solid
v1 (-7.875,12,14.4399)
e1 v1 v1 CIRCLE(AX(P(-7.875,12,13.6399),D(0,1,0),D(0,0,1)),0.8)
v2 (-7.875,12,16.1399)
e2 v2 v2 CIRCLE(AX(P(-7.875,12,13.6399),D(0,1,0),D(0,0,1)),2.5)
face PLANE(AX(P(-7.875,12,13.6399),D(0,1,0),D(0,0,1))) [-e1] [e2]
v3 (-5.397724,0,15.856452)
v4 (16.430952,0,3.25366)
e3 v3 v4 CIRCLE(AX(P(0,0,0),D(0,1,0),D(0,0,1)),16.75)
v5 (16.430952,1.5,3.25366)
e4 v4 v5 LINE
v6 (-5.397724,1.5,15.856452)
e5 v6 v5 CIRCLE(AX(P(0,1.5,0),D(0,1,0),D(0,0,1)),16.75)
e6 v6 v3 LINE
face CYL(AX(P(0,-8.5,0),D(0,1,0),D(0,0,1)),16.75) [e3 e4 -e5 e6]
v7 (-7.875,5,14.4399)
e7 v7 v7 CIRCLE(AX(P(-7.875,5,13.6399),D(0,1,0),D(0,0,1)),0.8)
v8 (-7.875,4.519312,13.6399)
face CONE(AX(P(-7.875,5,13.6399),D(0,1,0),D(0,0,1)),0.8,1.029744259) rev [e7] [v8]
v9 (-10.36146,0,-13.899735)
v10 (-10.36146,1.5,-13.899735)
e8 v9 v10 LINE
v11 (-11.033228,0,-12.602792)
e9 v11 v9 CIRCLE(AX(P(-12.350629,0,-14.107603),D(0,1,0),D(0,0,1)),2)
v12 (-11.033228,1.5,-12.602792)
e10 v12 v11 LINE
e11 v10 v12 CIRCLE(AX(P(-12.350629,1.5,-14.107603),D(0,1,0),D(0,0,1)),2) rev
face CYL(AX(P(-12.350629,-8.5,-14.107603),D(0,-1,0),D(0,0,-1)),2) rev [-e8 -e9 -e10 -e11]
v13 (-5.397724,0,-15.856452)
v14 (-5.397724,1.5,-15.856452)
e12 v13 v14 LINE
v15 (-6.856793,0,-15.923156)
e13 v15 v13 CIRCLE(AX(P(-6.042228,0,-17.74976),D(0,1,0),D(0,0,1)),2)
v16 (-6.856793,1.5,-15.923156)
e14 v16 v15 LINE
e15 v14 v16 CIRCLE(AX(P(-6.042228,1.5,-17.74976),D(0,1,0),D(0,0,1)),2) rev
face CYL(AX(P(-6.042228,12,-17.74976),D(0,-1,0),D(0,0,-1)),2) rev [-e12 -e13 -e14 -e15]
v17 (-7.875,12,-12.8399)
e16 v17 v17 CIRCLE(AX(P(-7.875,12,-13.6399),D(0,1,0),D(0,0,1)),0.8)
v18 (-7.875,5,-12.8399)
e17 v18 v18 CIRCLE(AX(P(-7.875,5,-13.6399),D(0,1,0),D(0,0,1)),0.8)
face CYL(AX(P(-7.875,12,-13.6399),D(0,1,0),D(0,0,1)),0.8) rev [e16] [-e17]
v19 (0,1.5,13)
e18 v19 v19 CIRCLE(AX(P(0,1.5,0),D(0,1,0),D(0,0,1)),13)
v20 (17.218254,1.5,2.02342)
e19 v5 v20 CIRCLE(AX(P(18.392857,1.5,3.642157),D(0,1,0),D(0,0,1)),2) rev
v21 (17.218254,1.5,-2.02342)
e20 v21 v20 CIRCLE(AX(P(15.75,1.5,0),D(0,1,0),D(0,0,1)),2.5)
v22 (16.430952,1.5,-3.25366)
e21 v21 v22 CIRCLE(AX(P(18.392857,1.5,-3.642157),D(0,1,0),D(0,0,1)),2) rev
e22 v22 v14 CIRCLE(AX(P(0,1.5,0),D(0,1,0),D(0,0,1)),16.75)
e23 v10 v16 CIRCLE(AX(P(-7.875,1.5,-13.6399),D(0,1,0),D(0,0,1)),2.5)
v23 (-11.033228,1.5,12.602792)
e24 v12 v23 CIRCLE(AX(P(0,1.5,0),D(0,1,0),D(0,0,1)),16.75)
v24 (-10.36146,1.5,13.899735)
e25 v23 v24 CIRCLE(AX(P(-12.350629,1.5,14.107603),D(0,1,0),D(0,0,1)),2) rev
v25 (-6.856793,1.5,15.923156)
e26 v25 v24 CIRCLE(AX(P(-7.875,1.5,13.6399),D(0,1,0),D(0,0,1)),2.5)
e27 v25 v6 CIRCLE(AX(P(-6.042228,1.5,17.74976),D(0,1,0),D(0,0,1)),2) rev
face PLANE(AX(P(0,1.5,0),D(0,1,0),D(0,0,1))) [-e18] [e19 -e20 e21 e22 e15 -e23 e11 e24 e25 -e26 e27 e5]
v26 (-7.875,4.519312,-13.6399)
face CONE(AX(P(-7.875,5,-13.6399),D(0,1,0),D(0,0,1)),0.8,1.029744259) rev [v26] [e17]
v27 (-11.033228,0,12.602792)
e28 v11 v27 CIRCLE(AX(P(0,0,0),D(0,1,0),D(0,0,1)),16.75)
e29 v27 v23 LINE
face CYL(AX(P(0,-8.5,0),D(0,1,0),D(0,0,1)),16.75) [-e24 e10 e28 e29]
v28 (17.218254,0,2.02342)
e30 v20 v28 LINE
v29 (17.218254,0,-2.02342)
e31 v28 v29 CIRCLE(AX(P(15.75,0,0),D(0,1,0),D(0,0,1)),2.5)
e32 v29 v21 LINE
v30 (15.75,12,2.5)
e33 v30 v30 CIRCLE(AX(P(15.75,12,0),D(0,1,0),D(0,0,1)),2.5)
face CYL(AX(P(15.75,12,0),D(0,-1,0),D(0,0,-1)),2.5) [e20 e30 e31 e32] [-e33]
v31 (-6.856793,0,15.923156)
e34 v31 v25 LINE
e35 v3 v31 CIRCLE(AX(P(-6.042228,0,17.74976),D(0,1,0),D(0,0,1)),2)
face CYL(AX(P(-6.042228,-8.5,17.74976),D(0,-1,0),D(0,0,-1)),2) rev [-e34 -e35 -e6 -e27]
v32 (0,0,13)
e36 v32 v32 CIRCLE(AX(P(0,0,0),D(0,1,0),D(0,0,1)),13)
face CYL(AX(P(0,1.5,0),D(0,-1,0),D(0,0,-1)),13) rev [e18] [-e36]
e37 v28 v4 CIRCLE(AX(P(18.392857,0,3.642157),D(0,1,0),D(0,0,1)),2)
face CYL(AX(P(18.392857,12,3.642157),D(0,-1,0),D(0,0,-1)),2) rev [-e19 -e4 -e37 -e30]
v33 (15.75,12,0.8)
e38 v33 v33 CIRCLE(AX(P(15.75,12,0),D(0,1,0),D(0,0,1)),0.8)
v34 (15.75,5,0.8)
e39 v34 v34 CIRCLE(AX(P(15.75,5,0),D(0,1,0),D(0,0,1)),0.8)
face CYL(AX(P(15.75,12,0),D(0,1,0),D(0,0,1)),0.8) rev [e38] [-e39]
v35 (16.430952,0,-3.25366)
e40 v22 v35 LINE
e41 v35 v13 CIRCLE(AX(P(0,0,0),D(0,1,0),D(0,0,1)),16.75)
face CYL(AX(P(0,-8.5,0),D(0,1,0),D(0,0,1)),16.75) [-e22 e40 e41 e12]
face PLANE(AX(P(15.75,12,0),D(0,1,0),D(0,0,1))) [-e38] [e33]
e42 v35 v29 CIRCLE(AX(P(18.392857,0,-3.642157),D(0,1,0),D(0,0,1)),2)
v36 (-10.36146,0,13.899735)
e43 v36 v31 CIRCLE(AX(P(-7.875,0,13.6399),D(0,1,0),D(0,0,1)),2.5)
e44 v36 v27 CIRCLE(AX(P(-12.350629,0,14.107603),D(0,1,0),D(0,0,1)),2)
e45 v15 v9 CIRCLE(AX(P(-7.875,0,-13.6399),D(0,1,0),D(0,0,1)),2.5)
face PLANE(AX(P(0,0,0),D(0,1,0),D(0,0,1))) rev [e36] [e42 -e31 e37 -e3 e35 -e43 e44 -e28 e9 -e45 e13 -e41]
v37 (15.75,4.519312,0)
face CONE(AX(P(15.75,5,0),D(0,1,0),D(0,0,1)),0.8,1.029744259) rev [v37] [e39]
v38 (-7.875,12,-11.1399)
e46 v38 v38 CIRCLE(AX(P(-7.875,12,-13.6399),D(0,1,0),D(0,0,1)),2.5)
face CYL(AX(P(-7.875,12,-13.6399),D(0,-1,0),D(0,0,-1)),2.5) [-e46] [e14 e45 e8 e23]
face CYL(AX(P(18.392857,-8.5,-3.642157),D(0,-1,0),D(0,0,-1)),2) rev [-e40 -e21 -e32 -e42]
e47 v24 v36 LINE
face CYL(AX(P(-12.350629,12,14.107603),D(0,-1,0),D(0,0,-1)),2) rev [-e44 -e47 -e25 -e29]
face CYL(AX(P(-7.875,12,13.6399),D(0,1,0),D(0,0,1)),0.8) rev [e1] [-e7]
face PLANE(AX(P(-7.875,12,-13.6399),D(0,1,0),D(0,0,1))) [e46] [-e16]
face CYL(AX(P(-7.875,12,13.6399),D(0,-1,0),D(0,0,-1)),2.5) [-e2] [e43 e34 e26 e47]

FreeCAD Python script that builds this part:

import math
import FreeCAD as App
import Part
import Sketcher


def edges_at(feature, points):
    """Names of the edges that pass closest to the given points."""
    edges = feature.Shape.Edges
    near = lambda p: min(range(len(edges)), key=lambda i: edges[i].distToShape(Part.Vertex(*p))[0])
    return sorted({f"Edge{near(p) + 1}" for p in points})


def add_polygon(sketch, points):
    """Adds a closed chain of lines whose ends are joined by coincident constraints."""
    first, n = sketch.GeometryCount, len(points)
    for a, b in zip(points, points[1:] + points[:1]):
        sketch.addGeometry(Part.LineSegment(App.Vector(*a, 0), App.Vector(*b, 0)), False)
    for i in range(n):
        sketch.addConstraint(Sketcher.Constraint("Coincident", first + i, 2, first + (i + 1) % n, 1))

doc = App.newDocument("Part")
body = doc.addObject("PartDesign::Body", "Body")

# Sketch on XZ plane
sketch1 = doc.addObject("Sketcher::SketchObject", "Sketch")
body.addObject(sketch1)
sketch1.AttachmentSupport = (doc.XZ_Plane, [""])
sketch1.MapMode = "FlatFace"
sketch1.addGeometry(Part.Circle(App.Vector(0, 0, 0), App.Vector(0, 0, 1), 18), False)
sketch1.addGeometry(Part.Circle(App.Vector(0, 0, 0), App.Vector(0, 0, 1), 13), False)
sketch1.addConstraint(Sketcher.Constraint("Coincident", 0, 3, -1, 1))
sketch1.addConstraint(Sketcher.Constraint("Coincident", 1, 3, -1, 1))
sketch1.addConstraint(Sketcher.Constraint("Diameter", 0, 37.0))
sketch1.addConstraint(Sketcher.Constraint("Diameter", 1, 26.0))
pad1 = doc.addObject("PartDesign::Pad", "Pad")
body.addObject(pad1)
pad1.Profile = sketch1
pad1.Length = 1.5
pad1.Reversed = True

# Sketch on XZ plane
sketch2 = doc.addObject("Sketcher::SketchObject", "Sketch001")
body.addObject(sketch2)
sketch2.AttachmentSupport = (doc.XZ_Plane, [""])
sketch2.MapMode = "FlatFace"
sketch2.AttachmentOffset = App.Placement(App.Vector(0, 0, -1.5), App.Rotation())
sketch2.addGeometry(Part.Circle(App.Vector(15.8, 0, 0), App.Vector(0, 0, 1), 2.5), False)
sketch2.addGeometry(Part.Circle(App.Vector(-7.9, 13.6, 0), App.Vector(0, 0, 1), 2.5), False)
sketch2.addGeometry(Part.Circle(App.Vector(-7.9, -13.6, 0), App.Vector(0, 0, 1), 2.5), False)
sketch2.addConstraint(Sketcher.Constraint("Equal", 0, 1))
sketch2.addConstraint(Sketcher.Constraint("Equal", 1, 2))
sketch2.addConstraint(Sketcher.Constraint("Symmetric", 1, 3, 2, 3, -1))
sketch2.addConstraint(Sketcher.Constraint("PointOnObject", 0, 3, -1))
sketch2.addConstraint(Sketcher.Constraint("Diameter", 0, 5.0))
sketch2.addConstraint(Sketcher.Constraint("DistanceX", -1, 1, 0, 3, 15.75))
sketch2.addConstraint(Sketcher.Constraint("DistanceX", 1, 3, -1, 1, 7.875))
sketch2.addConstraint(Sketcher.Constraint("DistanceY", -1, 1, 1, 3, 13.6399))
pad2 = doc.addObject("PartDesign::Pad", "Pad001")
body.addObject(pad2)
pad2.Profile = sketch2
pad2.Length = 10.5
pad2.Reversed = True

# Sketch on XZ plane
sketch3 = doc.addObject("Sketcher::SketchObject", "Sketch002")
body.addObject(sketch3)
sketch3.AttachmentSupport = (doc.XZ_Plane, [""])
sketch3.MapMode = "FlatFace"
sketch3.AttachmentOffset = App.Placement(App.Vector(0, 0, -12), App.Rotation())
sketch3.addGeometry(Part.Circle(App.Vector(15.8, 0, 0), App.Vector(0, 0, 1), 0.8), False)
sketch3.addGeometry(Part.Circle(App.Vector(-7.9, -13.6, 0), App.Vector(0, 0, 1), 0.8), False)
sketch3.addGeometry(Part.Circle(App.Vector(-7.9, 13.6, 0), App.Vector(0, 0, 1), 0.8), False)
sketch3.addConstraint(Sketcher.Constraint("Equal", 0, 1))
sketch3.addConstraint(Sketcher.Constraint("Equal", 1, 2))
sketch3.addConstraint(Sketcher.Constraint("Symmetric", 1, 3, 2, 3, -1))
sketch3.addConstraint(Sketcher.Constraint("PointOnObject", 0, 3, -1))
sketch3.addConstraint(Sketcher.Constraint("Diameter", 0, 1.6))
sketch3.addConstraint(Sketcher.Constraint("DistanceX", -1, 1, 0, 3, 15.75))
sketch3.addConstraint(Sketcher.Constraint("DistanceX", 1, 3, -1, 1, 7.875))
sketch3.addConstraint(Sketcher.Constraint("DistanceY", 1, 3, -1, 1, 13.6399))
doc.recompute()
hole = doc.addObject("PartDesign::Hole", "Hole")
body.addObject(hole)
hole.Profile = sketch3
hole.ThreadType = "None"
hole.Diameter = 1.6
hole.DepthType = "Dimension"
hole.Depth = 7
hole.DrillPoint = "Angled"
hole.DrillPointAngle = 118
hole.Reversed = True

# Sketch on XZ plane
sketch4 = doc.addObject("Sketcher::SketchObject", "Sketch003")
body.addObject(sketch4)
sketch4.AttachmentSupport = (doc.XZ_Plane, [""])
sketch4.MapMode = "FlatFace"
sketch4.AttachmentOffset = App.Placement(App.Vector(0, 0, -1.5), App.Rotation())
add_polygon(sketch4, [(-24.9, -24.9), (-24.9, 24.9), (24.9, 24.9), (24.9, -24.9)])  # lines 0-3
sketch4.addGeometry(Part.ArcOfCircle(Part.Circle(App.Vector(0, 0, 0), App.Vector(0, 0, 1), 16.8), math.radians(-112), math.radians(-8)), False)  # 4
sketch4.addGeometry(Part.ArcOfCircle(Part.Circle(App.Vector(15.8, 0, 0), App.Vector(0, 0, 1), 2.5), math.radians(-71), math.radians(71)), False)  # 5
sketch4.addGeometry(Part.ArcOfCircle(Part.Circle(App.Vector(0, 0, 0), App.Vector(0, 0, 1), 16.8), math.radians(8), math.radians(112)), False)  # 6
sketch4.addGeometry(Part.ArcOfCircle(Part.Circle(App.Vector(-7.9, 13.6, 0), App.Vector(0, 0, 1), 2.5), math.radians(49), math.radians(191)), False)  # 7
sketch4.addGeometry(Part.ArcOfCircle(Part.Circle(App.Vector(0, 0, 0), App.Vector(0, 0, 1), 16.8), math.radians(128), math.radians(232)), False)  # 8
sketch4.addGeometry(Part.ArcOfCircle(Part.Circle(App.Vector(-7.9, -13.6, 0), App.Vector(0, 0, 1), 2.5), math.radians(169), math.radians(311)), False)  # 9
sketch4.addConstraint(Sketcher.Constraint("Coincident", 4, 2, 5, 1))
sketch4.addConstraint(Sketcher.Constraint("Coincident", 5, 2, 6, 1))
sketch4.addConstraint(Sketcher.Constraint("Coincident", 6, 2, 7, 1))
sketch4.addConstraint(Sketcher.Constraint("Coincident", 7, 2, 8, 1))
sketch4.addConstraint(Sketcher.Constraint("Coincident", 8, 2, 9, 1))
sketch4.addConstraint(Sketcher.Constraint("Coincident", 9, 2, 4, 1))
sketch4.addConstraint(Sketcher.Constraint("Vertical", 0))
sketch4.addConstraint(Sketcher.Constraint("Horizontal", 1))
sketch4.addConstraint(Sketcher.Constraint("Vertical", 2))
sketch4.addConstraint(Sketcher.Constraint("Horizontal", 3))
sketch4.addConstraint(Sketcher.Constraint("Coincident", 4, 3, -1, 1))
sketch4.addConstraint(Sketcher.Constraint("Coincident", 6, 3, -1, 1))
sketch4.addConstraint(Sketcher.Constraint("Coincident", 8, 3, -1, 1))
sketch4.addConstraint(Sketcher.Constraint("Equal", 4, 6))
sketch4.addConstraint(Sketcher.Constraint("Equal", 5, 7))
sketch4.addConstraint(Sketcher.Constraint("Equal", 6, 8))
sketch4.addConstraint(Sketcher.Constraint("Equal", 7, 9))
sketch4.addConstraint(Sketcher.Constraint("Symmetric", 0, 2, 2, 2, -1, 1))
sketch4.addConstraint(Sketcher.Constraint("Symmetric", 7, 3, 9, 3, -1))
sketch4.addConstraint(Sketcher.Constraint("PointOnObject", 5, 3, -1))
sketch4.addConstraint(Sketcher.Constraint("Equal", 3, 0))
sketch4.addConstraint(Sketcher.Constraint("Radius", 5, 2.5))
sketch4.addConstraint(Sketcher.Constraint("Radius", 4, 16.75))
sketch4.addConstraint(Sketcher.Constraint("DistanceX", 1, 1, 1, 2, 49.736))
sketch4.addConstraint(Sketcher.Constraint("DistanceX", -1, 1, 5, 3, 15.75))
sketch4.addConstraint(Sketcher.Constraint("DistanceX", 7, 3, -1, 1, 7.875))
sketch4.addConstraint(Sketcher.Constraint("DistanceY", -1, 1, 7, 3, 13.6399))
pocket1 = doc.addObject("PartDesign::Pocket", "Pocket")
body.addObject(pocket1)
pocket1.Profile = sketch4
pocket1.Length = 10
pocket1.Reversed = True
doc.recompute()

fillet = doc.addObject("PartDesign::Fillet", "Fillet")
body.addObject(fillet)
fillet.Base = (pocket1, edges_at(pocket1, [
    (-6.25, 0.75, 15.54),
    (-10.333, 0.75, 13.183),
    (-10.333, 0.75, -13.183),
    (-6.25, 0.75, -15.54),
    (16.583, 0.75, -2.357),
    (16.583, 0.75, 2.357),
]))
fillet.Radius = 2

doc.recompute()
